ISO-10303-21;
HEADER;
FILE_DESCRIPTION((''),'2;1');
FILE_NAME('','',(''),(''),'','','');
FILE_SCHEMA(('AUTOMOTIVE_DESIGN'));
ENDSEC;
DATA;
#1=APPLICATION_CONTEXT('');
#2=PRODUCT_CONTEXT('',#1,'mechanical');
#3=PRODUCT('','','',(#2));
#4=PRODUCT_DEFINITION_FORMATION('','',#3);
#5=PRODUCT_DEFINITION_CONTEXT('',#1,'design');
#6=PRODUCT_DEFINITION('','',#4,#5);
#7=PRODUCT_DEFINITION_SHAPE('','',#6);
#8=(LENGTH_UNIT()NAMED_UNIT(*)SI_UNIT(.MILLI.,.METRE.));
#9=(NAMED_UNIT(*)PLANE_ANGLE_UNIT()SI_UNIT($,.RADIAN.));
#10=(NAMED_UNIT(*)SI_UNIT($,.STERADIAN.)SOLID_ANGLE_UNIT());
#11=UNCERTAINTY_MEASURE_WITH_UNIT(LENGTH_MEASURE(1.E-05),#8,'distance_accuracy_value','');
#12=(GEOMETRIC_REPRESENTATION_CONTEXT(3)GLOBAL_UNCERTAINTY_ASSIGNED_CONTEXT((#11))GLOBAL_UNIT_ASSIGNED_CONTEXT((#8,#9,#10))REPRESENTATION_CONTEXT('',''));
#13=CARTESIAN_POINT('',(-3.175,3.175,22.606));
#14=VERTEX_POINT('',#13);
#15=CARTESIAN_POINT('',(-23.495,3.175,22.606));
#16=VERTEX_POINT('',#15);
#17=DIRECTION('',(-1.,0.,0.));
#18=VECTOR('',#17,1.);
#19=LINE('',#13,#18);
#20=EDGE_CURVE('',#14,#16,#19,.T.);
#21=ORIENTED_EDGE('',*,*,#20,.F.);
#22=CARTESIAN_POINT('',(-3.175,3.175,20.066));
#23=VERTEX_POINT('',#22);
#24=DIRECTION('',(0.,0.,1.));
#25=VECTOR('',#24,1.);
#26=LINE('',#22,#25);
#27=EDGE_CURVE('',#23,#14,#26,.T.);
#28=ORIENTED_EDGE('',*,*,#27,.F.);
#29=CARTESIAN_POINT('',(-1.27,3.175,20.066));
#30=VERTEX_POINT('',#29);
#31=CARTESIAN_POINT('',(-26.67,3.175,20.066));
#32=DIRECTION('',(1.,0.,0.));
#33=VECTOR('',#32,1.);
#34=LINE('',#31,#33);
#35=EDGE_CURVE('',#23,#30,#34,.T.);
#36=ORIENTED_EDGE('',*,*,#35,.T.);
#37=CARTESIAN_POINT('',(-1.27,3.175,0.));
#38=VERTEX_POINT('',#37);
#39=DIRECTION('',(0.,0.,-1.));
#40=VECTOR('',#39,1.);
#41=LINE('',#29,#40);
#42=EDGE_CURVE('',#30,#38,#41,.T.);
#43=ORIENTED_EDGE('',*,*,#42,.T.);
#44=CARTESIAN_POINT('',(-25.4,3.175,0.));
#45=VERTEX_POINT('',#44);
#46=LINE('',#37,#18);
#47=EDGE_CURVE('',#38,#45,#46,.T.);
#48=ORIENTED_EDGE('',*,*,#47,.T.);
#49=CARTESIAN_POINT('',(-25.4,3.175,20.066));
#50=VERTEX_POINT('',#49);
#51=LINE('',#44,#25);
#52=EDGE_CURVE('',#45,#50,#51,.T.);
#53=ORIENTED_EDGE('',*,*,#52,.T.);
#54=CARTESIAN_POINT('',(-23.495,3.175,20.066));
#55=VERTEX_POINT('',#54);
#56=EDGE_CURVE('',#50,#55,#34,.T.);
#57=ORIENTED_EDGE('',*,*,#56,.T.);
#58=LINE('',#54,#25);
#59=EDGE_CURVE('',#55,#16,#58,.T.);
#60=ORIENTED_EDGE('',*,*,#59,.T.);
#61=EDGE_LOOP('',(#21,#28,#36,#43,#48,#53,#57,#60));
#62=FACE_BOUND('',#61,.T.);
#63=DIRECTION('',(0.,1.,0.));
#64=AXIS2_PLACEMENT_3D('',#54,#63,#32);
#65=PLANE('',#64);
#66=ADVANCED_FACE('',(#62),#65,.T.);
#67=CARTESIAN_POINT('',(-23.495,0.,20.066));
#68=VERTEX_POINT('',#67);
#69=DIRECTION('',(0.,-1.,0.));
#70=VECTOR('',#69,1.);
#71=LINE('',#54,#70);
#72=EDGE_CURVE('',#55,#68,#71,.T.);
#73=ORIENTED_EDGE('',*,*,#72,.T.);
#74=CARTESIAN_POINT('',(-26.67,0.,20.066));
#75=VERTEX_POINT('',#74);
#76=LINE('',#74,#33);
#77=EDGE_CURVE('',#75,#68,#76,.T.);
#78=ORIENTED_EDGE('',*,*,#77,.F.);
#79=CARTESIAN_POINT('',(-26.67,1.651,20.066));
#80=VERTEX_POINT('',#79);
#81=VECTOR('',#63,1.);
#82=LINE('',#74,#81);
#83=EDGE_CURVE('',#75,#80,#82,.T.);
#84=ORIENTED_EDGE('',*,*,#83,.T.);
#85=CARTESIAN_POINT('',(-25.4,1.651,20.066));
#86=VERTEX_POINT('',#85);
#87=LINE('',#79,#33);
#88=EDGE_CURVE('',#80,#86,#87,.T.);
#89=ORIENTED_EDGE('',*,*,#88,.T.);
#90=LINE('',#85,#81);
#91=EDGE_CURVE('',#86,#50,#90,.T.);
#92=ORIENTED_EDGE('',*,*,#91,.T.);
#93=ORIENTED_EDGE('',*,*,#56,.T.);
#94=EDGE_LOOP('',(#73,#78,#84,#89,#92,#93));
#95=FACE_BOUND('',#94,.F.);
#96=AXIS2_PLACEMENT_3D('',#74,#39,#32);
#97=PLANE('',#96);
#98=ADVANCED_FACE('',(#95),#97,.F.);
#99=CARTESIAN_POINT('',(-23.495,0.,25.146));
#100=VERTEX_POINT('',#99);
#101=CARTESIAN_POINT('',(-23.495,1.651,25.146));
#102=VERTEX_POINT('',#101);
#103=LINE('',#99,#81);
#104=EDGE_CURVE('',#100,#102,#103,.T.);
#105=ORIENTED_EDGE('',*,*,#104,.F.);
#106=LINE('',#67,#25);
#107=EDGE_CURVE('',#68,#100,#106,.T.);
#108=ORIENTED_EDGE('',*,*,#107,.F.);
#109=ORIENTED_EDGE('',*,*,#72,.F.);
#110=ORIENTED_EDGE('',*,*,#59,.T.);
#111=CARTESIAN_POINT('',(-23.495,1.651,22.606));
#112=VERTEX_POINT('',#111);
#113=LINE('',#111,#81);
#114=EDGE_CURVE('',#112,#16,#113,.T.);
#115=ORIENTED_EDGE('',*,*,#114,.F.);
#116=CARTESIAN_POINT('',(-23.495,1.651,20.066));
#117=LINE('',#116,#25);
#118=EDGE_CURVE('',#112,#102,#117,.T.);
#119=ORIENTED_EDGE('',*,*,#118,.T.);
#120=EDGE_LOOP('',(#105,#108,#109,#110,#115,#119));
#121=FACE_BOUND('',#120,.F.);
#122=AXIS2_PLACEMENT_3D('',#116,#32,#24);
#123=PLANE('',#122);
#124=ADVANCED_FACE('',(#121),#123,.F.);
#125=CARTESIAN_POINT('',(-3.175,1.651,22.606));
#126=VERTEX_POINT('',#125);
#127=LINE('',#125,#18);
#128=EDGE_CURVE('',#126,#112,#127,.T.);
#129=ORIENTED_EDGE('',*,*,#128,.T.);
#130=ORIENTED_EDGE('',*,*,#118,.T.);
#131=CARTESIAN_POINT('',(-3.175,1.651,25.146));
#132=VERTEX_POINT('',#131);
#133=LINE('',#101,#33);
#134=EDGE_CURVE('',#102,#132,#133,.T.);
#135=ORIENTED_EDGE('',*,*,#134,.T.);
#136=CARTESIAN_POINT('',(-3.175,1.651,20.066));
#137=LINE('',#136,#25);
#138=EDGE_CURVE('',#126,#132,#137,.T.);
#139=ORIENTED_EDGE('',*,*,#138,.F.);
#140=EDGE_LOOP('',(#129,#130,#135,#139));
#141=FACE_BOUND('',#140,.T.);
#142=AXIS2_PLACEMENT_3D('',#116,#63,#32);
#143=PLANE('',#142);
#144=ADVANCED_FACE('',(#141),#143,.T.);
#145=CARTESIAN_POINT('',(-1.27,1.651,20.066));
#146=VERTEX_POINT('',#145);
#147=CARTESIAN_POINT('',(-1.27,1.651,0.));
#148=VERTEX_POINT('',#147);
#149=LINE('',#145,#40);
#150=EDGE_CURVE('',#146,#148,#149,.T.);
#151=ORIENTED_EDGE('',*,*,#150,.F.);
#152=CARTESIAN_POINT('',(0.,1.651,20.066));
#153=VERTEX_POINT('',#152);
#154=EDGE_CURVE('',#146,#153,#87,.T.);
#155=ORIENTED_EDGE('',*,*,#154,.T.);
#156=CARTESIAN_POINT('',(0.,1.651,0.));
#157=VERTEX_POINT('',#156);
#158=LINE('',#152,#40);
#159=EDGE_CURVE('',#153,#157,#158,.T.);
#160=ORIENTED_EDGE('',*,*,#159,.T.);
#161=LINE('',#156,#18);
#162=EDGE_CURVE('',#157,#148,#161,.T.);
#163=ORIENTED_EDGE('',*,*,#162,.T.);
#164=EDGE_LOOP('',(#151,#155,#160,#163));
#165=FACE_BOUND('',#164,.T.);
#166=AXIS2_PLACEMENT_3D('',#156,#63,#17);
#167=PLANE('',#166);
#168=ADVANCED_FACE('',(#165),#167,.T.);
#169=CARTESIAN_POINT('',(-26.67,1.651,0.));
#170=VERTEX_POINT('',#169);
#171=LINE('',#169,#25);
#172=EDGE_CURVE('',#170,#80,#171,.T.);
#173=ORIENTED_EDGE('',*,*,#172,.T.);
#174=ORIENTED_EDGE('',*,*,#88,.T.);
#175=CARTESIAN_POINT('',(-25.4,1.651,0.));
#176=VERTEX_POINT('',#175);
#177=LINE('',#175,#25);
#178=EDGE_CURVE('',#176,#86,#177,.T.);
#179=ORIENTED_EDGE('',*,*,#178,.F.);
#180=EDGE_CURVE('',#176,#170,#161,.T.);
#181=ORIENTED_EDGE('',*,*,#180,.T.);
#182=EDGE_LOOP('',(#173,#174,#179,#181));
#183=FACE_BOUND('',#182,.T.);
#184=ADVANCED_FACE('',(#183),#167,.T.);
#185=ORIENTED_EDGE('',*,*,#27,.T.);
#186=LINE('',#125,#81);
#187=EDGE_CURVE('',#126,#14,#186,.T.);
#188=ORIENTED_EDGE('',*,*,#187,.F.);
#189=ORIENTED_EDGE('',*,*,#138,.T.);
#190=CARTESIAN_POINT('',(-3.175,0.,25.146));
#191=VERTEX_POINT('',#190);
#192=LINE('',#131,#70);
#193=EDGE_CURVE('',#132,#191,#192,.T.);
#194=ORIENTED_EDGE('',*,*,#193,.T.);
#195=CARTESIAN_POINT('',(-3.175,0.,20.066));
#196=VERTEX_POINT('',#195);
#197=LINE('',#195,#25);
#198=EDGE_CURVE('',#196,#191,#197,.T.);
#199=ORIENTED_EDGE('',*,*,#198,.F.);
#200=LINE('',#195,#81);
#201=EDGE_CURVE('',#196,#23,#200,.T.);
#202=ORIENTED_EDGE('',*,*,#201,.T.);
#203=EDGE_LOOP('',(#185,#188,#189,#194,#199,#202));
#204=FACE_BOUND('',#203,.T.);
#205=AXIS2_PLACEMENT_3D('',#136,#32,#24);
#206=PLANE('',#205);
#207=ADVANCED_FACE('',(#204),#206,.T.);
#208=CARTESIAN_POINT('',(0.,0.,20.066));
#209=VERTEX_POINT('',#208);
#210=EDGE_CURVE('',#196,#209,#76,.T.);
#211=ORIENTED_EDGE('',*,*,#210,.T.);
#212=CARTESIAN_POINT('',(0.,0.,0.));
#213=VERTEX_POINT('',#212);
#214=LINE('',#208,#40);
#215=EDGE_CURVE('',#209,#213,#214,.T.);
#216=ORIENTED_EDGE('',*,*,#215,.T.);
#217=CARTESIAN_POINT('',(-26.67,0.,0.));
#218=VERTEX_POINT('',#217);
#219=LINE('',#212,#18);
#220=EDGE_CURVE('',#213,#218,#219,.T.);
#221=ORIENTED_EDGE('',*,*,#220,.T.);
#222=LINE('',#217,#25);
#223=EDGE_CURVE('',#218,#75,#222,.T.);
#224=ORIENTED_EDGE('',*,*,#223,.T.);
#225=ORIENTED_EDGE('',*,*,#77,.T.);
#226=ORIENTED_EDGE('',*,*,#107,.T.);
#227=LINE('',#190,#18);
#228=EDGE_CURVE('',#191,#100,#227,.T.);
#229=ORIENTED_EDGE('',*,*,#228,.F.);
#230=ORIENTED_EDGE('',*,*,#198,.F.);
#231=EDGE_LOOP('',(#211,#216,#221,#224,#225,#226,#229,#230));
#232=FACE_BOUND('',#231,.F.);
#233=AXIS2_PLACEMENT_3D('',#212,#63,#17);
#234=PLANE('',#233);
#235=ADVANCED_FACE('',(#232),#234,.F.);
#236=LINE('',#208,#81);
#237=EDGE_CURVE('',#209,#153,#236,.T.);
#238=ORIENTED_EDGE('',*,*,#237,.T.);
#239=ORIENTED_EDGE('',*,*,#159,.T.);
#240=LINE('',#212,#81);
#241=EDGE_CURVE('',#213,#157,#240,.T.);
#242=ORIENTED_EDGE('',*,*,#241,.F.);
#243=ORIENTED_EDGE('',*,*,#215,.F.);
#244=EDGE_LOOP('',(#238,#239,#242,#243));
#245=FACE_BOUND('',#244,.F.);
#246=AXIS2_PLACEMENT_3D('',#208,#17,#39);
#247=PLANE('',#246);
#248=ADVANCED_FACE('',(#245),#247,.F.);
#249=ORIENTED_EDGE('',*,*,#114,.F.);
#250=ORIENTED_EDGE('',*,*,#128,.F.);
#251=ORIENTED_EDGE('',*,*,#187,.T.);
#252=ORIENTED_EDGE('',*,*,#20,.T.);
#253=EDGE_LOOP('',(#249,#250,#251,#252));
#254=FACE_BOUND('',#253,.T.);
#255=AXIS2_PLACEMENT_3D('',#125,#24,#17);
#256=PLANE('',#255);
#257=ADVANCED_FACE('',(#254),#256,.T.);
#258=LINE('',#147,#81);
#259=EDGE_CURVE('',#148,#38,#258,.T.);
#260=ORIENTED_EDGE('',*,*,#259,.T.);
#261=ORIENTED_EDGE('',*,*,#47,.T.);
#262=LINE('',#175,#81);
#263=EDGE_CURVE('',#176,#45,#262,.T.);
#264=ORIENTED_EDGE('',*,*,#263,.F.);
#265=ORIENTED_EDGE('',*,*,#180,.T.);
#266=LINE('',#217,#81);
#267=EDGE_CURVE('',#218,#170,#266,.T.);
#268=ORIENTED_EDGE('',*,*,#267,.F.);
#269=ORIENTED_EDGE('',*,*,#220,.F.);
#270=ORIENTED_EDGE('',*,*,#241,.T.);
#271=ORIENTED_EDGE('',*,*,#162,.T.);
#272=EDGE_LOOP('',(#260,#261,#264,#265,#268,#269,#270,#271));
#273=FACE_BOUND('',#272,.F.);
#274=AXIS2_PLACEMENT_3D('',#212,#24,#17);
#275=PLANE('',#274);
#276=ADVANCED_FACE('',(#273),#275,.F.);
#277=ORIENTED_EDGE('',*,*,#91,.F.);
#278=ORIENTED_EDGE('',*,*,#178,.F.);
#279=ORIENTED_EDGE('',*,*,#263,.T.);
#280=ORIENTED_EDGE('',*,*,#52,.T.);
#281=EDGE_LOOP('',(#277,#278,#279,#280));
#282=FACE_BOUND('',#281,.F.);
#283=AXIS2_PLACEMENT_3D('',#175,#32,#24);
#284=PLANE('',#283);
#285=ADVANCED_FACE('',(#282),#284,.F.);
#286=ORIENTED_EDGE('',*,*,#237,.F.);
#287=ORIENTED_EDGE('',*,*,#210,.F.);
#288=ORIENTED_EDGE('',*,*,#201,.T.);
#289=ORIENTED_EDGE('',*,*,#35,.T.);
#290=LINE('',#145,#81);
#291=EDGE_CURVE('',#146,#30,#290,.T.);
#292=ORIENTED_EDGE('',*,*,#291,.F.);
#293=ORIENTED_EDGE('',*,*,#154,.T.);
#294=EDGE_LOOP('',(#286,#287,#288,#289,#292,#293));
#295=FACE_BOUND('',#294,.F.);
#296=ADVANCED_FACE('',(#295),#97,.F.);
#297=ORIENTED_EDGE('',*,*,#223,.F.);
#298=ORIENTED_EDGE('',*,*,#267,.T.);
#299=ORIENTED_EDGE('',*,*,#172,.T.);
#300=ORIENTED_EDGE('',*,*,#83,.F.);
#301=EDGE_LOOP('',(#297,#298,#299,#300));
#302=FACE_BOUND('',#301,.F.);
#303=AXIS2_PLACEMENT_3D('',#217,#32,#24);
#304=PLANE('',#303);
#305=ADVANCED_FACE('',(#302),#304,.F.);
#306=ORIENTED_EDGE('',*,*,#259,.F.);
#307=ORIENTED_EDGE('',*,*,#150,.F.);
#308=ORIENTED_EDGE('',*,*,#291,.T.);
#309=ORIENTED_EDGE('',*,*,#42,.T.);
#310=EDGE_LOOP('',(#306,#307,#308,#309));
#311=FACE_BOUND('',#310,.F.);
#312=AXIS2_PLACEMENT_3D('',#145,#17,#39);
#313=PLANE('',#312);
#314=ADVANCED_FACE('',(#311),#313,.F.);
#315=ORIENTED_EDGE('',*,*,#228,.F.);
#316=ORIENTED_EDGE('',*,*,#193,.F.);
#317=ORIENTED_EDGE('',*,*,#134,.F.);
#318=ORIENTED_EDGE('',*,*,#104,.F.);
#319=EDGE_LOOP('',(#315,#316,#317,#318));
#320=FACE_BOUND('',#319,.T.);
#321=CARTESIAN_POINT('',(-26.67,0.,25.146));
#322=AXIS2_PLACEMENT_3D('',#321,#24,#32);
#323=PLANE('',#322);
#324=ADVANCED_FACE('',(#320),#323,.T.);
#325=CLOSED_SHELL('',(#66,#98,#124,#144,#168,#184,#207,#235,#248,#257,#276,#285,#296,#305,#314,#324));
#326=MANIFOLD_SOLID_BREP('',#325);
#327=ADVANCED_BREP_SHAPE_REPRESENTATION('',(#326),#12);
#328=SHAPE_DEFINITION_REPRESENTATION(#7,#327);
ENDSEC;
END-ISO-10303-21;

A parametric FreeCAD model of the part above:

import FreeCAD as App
import Part
import Sketcher
Q = App.Units.Quantity


def add_polygon(sketch, points):
    """Adds a closed chain of lines whose ends are joined by coincident constraints."""
    first, n = sketch.GeometryCount, len(points)
    for a, b in zip(points, points[1:] + points[:1]):
        sketch.addGeometry(Part.LineSegment(App.Vector(*a, 0), App.Vector(*b, 0)), False)
    for i in range(n):
        sketch.addConstraint(Sketcher.Constraint("Coincident", first + i, 2, first + (i + 1) % n, 1))

doc = App.newDocument("Part")
body = doc.addObject("PartDesign::Body", "Body")

sketch1 = doc.addObject("Sketcher::SketchObject", "Sketch")
body.addObject(sketch1)
sketch1.AttachmentSupport = (doc.XZ_Plane, [""])
sketch1.MapMode = "FlatFace"
add_polygon(sketch1, [(0, 20), (0, 0), (-27, 0), (-27, 20)])
sketch1.addConstraint(Sketcher.Constraint("Vertical", 0))
sketch1.addConstraint(Sketcher.Constraint("Horizontal", 1))
sketch1.addConstraint(Sketcher.Constraint("Vertical", 2))
sketch1.addConstraint(Sketcher.Constraint("Horizontal", 3))
sketch1.addConstraint(Sketcher.Constraint("Coincident", 0, 2, -1, 1))
sketch1.addConstraint(Sketcher.Constraint("DistanceX", 1, 2, 1, 1, Q("1.05 in")))
sketch1.addConstraint(Sketcher.Constraint("DistanceY", 0, 2, 0, 1, Q("0.79 in")))
pad1 = doc.addObject("PartDesign::Pad", "Pad")
body.addObject(pad1)
pad1.Profile = sketch1
pad1.Length = Q("0.065 in")
pad1.Reversed = True

sketch2 = doc.addObject("Sketcher::SketchObject", "Sketch001")
body.addObject(sketch2)
sketch2.AttachmentSupport = (doc.XZ_Plane, [""])
sketch2.MapMode = "FlatFace"
sketch2.AttachmentOffset = App.Placement(App.Vector(0, 0, -0.065 * 25.4), App.Rotation())
add_polygon(sketch2, [(-25, 0), (-25, 20), (-1, 20), (-1, 0)])
sketch2.addConstraint(Sketcher.Constraint("Vertical", 0))
sketch2.addConstraint(Sketcher.Constraint("Horizontal", 1))
sketch2.addConstraint(Sketcher.Constraint("Vertical", 2))
sketch2.addConstraint(Sketcher.Constraint("Horizontal", 3))
sketch2.addConstraint(Sketcher.Constraint("PointOnObject", 2, 2, -1))
sketch2.addConstraint(Sketcher.Constraint("DistanceX", 1, 2, -1, 1, Q("0.05 in")))
sketch2.addConstraint(Sketcher.Constraint("DistanceX", 0, 2, -1, 1, Q("1 in")))
sketch2.addConstraint(Sketcher.Constraint("DistanceY", 0, 1, 0, 2, Q("0.79 in")))
pad2 = doc.addObject("PartDesign::Pad", "Pad001")
body.addObject(pad2)
pad2.Profile = sketch2
pad2.Length = Q("0.06 in")
pad2.Reversed = True

sketch3 = doc.addObject("Sketcher::SketchObject", "Sketch002")
body.addObject(sketch3)
sketch3.AttachmentSupport = (doc.XY_Plane, [""])
sketch3.MapMode = "FlatFace"
sketch3.AttachmentOffset = App.Placement(App.Vector(0, 0, 0.79 * 25.4), App.Rotation())
add_polygon(sketch3, [(-3.2, 1.7), (-23.5, 1.7), (-23.5, 0), (-3.2, 0)])
sketch3.addConstraint(Sketcher.Constraint("Horizontal", 0))
sketch3.addConstraint(Sketcher.Constraint("Vertical", 1))
sketch3.addConstraint(Sketcher.Constraint("Horizontal", 2))
sketch3.addConstraint(Sketcher.Constraint("Vertical", 3))
sketch3.addConstraint(Sketcher.Constraint("PointOnObject", 1, 2, -1))
sketch3.addConstraint(Sketcher.Constraint("DistanceX", 0, 2, 0, 1, Q("0.8 in")))
sketch3.addConstraint(Sketcher.Constraint("DistanceY", 1, 2, 1, 1, Q("0.065 in")))
sketch3.addConstraint(Sketcher.Constraint("DistanceX", 2, 2, -1, 1, Q("0.125 in")))
pad3 = doc.addObject("PartDesign::Pad", "Pad002")
body.addObject(pad3)
pad3.Profile = sketch3
pad3.Length = Q("0.2 in")

sketch4 = doc.addObject("Sketcher::SketchObject", "Sketch003")
body.addObject(sketch4)
sketch4.AttachmentSupport = (doc.XZ_Plane, [""])
sketch4.MapMode = "FlatFace"
sketch4.AttachmentOffset = App.Placement(App.Vector(0, 0, -0.065 * 25.4), App.Rotation())
add_polygon(sketch4, [(-3.2, 20.1), (-23.5, 20.1), (-23.5, 22.6), (-3.2, 22.6)])
sketch4.addConstraint(Sketcher.Constraint("Horizontal", 0))
sketch4.addConstraint(Sketcher.Constraint("Vertical", 1))
sketch4.addConstraint(Sketcher.Constraint("Horizontal", 2))
sketch4.addConstraint(Sketcher.Constraint("Vertical", 3))
sketch4.addConstraint(Sketcher.Constraint("DistanceX", 0, 2, 0, 1, Q("0.8 in")))
sketch4.addConstraint(Sketcher.Constraint("DistanceY", 1, 1, 1, 2, Q("0.1 in")))
sketch4.addConstraint(Sketcher.Constraint("DistanceY", -1, 1, 0, 2, Q("0.79 in")))
sketch4.addConstraint(Sketcher.Constraint("DistanceX", 0, 2, -1, 1, Q("0.925 in")))
pad4 = doc.addObject("PartDesign::Pad", "Pad003")
body.addObject(pad4)
pad4.Profile = sketch4
pad4.Length = Q("0.06 in")
pad4.Reversed = True

doc.recompute()
